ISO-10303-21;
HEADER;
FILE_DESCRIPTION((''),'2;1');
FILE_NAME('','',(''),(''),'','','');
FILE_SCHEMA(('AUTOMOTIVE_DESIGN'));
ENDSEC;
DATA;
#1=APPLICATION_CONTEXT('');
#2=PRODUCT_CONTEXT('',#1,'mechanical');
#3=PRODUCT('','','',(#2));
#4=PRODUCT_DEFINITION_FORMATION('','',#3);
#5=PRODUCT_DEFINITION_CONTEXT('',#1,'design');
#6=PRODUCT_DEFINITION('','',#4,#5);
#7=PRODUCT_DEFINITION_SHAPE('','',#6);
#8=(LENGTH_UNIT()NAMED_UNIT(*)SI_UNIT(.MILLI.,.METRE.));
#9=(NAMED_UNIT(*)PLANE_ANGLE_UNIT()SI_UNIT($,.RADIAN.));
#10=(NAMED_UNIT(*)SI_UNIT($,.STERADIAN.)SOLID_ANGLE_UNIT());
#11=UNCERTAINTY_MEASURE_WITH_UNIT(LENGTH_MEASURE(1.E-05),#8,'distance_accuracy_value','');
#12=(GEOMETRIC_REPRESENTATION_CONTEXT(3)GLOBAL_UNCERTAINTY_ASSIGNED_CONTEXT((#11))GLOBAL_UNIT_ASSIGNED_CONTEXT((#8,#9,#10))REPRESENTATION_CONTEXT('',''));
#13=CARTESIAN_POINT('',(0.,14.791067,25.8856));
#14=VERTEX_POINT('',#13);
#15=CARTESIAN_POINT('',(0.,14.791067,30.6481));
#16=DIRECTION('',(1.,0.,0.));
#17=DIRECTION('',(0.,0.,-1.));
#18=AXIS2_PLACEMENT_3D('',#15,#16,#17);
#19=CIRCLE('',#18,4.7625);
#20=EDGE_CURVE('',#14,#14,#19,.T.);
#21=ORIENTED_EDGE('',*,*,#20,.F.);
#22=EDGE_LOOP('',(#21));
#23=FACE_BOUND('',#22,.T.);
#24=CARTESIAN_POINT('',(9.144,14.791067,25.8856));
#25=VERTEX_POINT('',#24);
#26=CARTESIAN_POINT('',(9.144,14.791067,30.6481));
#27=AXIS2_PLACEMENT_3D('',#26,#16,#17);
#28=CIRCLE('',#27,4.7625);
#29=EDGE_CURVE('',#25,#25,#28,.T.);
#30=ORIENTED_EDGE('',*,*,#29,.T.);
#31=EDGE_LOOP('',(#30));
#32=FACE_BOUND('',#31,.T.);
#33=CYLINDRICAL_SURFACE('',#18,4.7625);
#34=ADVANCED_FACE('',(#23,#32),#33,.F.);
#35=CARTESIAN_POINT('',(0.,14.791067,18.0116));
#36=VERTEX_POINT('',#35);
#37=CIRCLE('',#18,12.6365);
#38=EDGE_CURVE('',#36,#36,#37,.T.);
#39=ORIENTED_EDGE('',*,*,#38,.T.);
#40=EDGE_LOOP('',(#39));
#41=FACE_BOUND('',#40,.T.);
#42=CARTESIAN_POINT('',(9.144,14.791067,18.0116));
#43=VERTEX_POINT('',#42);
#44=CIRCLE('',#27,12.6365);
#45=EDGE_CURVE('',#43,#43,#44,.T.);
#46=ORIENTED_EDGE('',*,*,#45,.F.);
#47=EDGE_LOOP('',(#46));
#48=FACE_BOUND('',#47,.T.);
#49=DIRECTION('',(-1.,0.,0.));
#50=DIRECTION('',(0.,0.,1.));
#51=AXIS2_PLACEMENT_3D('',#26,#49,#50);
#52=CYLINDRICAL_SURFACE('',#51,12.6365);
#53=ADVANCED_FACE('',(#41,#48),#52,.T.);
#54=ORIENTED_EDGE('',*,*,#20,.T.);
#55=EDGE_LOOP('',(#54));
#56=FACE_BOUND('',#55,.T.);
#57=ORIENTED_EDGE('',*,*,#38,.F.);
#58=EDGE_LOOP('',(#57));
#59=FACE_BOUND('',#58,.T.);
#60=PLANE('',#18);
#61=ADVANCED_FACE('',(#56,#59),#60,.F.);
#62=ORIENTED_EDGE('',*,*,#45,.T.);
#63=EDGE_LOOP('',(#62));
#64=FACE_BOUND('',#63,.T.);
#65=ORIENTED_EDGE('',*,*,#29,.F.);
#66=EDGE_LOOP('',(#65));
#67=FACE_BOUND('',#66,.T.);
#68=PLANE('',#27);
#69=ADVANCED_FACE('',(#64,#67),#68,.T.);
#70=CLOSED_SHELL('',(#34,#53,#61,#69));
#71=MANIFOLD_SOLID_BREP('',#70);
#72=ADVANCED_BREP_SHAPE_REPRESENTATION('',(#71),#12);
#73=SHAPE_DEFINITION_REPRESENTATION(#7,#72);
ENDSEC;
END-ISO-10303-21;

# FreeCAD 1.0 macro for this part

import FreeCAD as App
import Part
import Sketcher
from FreeCAD import Vector
Q = App.Units.Quantity

doc = App.newDocument("Part")
params = doc.addObject("Spreadsheet::Sheet", "Params")
for row, (alias, value) in enumerate([
    ("sketch1_diameter", "0.995 in"),
    ("pad1_length", "0.36 in"),
    ("sketch2_diameter", "0.375 in"),
    ("pocket1_length", "0.36 in"),
], start=1):
    params.set(f"A{row}", alias)
    params.set(f"B{row}", "=" + value)
    params.setAlias(f"B{row}", alias)

body = doc.addObject("PartDesign::Body", "Body")

# Sketch on YZ plane
sketch1 = body.newObject("Sketcher::SketchObject", "Sketch")
sketch1.AttachmentSupport = (doc.getObject("YZ_Plane"), [""])
sketch1.MapMode = "FlatFace"
sketch1.addGeometry(Part.Circle(Vector(14.791067, 30.6481, 0), Vector(0, 0, 1), 12.6365), False)
sketch1.addConstraint([
    Sketcher.Constraint("Diameter", 0, Q("0.995 in")),
    Sketcher.Constraint("DistanceY", -1, 1, 0, 3, 30.6481),
    Sketcher.Constraint("DistanceX", -1, 1, 0, 3, 14.791067),
])
sketch1.setExpression("Constraints[0]", "Params.sketch1_diameter")
pad1 = body.newObject("PartDesign::Pad", "Pad")
pad1.Profile = sketch1
pad1.setExpression("Length", "Params.pad1_length")

# Sketch on YZ plane
sketch2 = body.newObject("Sketcher::SketchObject", "Sketch001")
sketch2.AttachmentSupport = (doc.getObject("YZ_Plane"), [""])
sketch2.MapMode = "FlatFace"
sketch2.AttachmentOffset = App.Placement(Vector(0, 0, 0.36 * 25.4), App.Rotation())
sketch2.addGeometry(Part.Circle(Vector(14.791067, 30.6481, 0), Vector(0, 0, 1), 4.7625), False)
sketch2.addConstraint([
    Sketcher.Constraint("Diameter", 0, Q("0.375 in")),
    Sketcher.Constraint("DistanceY", -1, 1, 0, 3, 30.6481),
    Sketcher.Constraint("DistanceX", -1, 1, 0, 3, 14.791067),
])
sketch2.setExpression("Constraints[0]", "Params.sketch2_diameter")
pocket1 = body.newObject("PartDesign::Pocket", "Pocket")
pocket1.Profile = sketch2
pocket1.setExpression("Length", "Params.pocket1_length")

doc.recompute()
